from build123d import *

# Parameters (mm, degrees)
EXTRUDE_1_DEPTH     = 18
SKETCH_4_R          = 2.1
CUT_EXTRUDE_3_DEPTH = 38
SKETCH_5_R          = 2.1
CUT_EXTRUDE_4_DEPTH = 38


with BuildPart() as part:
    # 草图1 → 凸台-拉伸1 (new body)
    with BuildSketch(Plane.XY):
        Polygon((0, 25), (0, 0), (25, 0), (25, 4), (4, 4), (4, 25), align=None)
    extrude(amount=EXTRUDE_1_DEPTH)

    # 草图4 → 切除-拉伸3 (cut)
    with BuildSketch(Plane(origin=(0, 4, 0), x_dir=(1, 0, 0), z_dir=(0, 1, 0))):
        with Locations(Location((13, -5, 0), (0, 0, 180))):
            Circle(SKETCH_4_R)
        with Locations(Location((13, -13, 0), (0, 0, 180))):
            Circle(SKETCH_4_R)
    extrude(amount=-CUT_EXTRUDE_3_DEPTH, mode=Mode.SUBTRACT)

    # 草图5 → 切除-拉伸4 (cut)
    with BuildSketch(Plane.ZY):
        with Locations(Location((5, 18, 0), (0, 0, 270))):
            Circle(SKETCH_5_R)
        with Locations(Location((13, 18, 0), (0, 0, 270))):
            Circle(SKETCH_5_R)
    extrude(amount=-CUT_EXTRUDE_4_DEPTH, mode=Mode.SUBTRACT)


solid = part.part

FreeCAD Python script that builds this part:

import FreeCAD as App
import Part
import Sketcher

V = App.Vector


def add_polygon(sketch, points):
    """Adds a closed chain of lines whose ends are joined by coincident constraints."""
    first, n = sketch.GeometryCount, len(points)
    for a, b in zip(points, points[1:] + points[:1]):
        sketch.addGeometry(Part.LineSegment(App.Vector(*a, 0), App.Vector(*b, 0)), False)
    for i in range(n):
        sketch.addConstraint(Sketcher.Constraint("Coincident", first + i, 2, first + (i + 1) % n, 1))

doc = App.newDocument("Part")
body = doc.addObject("PartDesign::Body", "Body")

sketch1 = doc.addObject("Sketcher::SketchObject", "Sketch")
body.addObject(sketch1)
sketch1.AttachmentSupport = (doc.XY_Plane, [""])
sketch1.MapMode = "FlatFace"
add_polygon(sketch1, [(0, 25), (0, 0), (25, 0), (25, 4), (4, 4), (4, 25)])
sketch1.addConstraint(Sketcher.Constraint("Vertical", 0))
sketch1.addConstraint(Sketcher.Constraint("Horizontal", 1))
sketch1.addConstraint(Sketcher.Constraint("Vertical", 2))
sketch1.addConstraint(Sketcher.Constraint("Horizontal", 3))
sketch1.addConstraint(Sketcher.Constraint("Vertical", 4))
sketch1.addConstraint(Sketcher.Constraint("Horizontal", 5))
sketch1.addConstraint(Sketcher.Constraint("Coincident", 0, 2, -1, 1))
sketch1.addConstraint(Sketcher.Constraint("Equal", 1, 0))
sketch1.addConstraint(Sketcher.Constraint("Equal", 5, 2))
sketch1.addConstraint(Sketcher.Constraint("DistanceX", 1, 1, 1, 2, 25.0))
sketch1.addConstraint(Sketcher.Constraint("DistanceX", 3, 2, 3, 1, 21.0))
pad1 = doc.addObject("PartDesign::Pad", "Pad")
body.addObject(pad1)
pad1.Profile = sketch1
pad1.Length = 18

sketch2 = doc.addObject("Sketcher::SketchObject", "Sketch001")
body.addObject(sketch2)
sketch2.AttachmentSupport = (doc.XZ_Plane, [""])
sketch2.MapMode = "FlatFace"
sketch2.AttachmentOffset = App.Placement(V(0, 0, -4), App.Rotation())
sketch2.addGeometry(Part.Circle(V(13, 5, 0), V(0, 0, 1), 2.1), False)
sketch2.addGeometry(Part.Circle(V(13, 13, 0), V(0, 0, 1), 2.1), False)
sketch2.addConstraint(Sketcher.Constraint("Equal", 0, 1))
sketch2.addConstraint(Sketcher.Constraint("Vertical", 0, 3, 1, 3))
sketch2.addConstraint(Sketcher.Constraint("Diameter", 0, 4.2))
sketch2.addConstraint(Sketcher.Constraint("DistanceX", -1, 1, 0, 3, 13.0))
sketch2.addConstraint(Sketcher.Constraint("DistanceY", -1, 1, 0, 3, 5.0))
sketch2.addConstraint(Sketcher.Constraint("DistanceY", -1, 1, 1, 3, 13.0))
pocket1 = doc.addObject("PartDesign::Pocket", "Pocket")
body.addObject(pocket1)
pocket1.Profile = sketch2
pocket1.Length = 38
pocket1.Reversed = True

sketch3 = doc.addObject("Sketcher::SketchObject", "Sketch002")
body.addObject(sketch3)
sketch3.AttachmentSupport = (doc.YZ_Plane, [""])
sketch3.MapMode = "FlatFace"
sketch3.addGeometry(Part.Circle(V(18, 5, 0), V(0, 0, 1), 2.1), False)
sketch3.addGeometry(Part.Circle(V(18, 13, 0), V(0, 0, 1), 2.1), False)
sketch3.addConstraint(Sketcher.Constraint("Equal", 0, 1))
sketch3.addConstraint(Sketcher.Constraint("Vertical", 0, 3, 1, 3))
sketch3.addConstraint(Sketcher.Constraint("Diameter", 0, 4.2))
sketch3.addConstraint(Sketcher.Constraint("DistanceX", -1, 1, 0, 3, 18.0))
sketch3.addConstraint(Sketcher.Constraint("DistanceY", -1, 1, 0, 3, 5.0))
sketch3.addConstraint(Sketcher.Constraint("DistanceY", -1, 1, 1, 3, 13.0))
pocket2 = doc.addObject("PartDesign::Pocket", "Pocket001")
body.addObject(pocket2)
pocket2.Profile = sketch3
pocket2.Length = 38
pocket2.Reversed = True

doc.recompute()
